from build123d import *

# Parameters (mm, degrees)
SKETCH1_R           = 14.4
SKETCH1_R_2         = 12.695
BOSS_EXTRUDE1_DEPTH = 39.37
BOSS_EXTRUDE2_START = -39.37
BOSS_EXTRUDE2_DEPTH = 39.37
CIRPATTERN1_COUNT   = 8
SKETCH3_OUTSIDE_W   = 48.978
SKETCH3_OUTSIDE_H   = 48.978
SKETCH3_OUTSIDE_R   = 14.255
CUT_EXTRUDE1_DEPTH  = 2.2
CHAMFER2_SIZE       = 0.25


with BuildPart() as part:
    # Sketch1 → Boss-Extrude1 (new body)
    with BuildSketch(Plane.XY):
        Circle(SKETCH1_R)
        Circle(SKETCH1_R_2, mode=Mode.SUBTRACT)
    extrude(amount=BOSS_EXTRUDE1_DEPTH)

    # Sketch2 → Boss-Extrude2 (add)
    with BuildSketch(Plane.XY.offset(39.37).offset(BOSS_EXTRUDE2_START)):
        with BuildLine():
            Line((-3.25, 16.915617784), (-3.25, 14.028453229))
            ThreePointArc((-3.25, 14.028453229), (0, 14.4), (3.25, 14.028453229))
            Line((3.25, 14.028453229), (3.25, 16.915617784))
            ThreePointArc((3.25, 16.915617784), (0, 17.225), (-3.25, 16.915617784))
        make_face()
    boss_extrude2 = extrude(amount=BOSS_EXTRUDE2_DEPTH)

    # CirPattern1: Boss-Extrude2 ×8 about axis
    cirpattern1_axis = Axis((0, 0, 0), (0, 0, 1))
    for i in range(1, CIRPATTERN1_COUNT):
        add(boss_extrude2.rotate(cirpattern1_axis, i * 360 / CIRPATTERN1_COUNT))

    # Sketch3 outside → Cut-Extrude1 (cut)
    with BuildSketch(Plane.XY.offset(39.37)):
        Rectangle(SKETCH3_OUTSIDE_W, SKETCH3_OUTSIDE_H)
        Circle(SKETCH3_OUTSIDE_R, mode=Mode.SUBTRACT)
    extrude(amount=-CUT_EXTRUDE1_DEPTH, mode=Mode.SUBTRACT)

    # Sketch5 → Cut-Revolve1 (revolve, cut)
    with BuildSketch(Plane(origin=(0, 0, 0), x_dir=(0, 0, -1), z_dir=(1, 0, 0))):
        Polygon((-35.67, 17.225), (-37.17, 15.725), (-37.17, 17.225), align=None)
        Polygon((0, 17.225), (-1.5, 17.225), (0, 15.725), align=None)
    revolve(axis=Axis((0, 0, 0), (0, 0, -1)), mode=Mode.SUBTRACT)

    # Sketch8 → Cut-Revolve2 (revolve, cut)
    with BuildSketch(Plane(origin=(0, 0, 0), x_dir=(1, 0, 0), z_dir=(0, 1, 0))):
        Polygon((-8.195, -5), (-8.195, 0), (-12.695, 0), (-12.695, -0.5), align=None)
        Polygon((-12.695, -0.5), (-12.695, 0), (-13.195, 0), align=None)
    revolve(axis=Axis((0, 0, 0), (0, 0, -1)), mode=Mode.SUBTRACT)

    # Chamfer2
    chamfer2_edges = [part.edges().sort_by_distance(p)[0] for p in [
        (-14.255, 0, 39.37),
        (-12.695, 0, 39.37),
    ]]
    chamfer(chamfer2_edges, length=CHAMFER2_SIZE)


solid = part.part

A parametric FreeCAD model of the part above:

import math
import FreeCAD as App
import Part
import Sketcher
from FreeCAD import Vector


def edges_at(feature, points):
    """Names of the edges that pass closest to the given points."""
    edges = feature.Shape.Edges
    near = lambda p: min(range(len(edges)), key=lambda i: edges[i].distToShape(Part.Vertex(*p))[0])
    return sorted({f"Edge{near(p) + 1}" for p in points})


def add_polygon(sketch, points):
    """Adds a closed chain of lines whose ends are joined by coincident constraints."""
    first, n = sketch.GeometryCount, len(points)
    for a, b in zip(points, points[1:] + points[:1]):
        sketch.addGeometry(Part.LineSegment(App.Vector(*a, 0), App.Vector(*b, 0)), False)
    for i in range(n):
        sketch.addConstraint(Sketcher.Constraint("Coincident", first + i, 2, first + (i + 1) % n, 1))

doc = App.newDocument("Part")
body = doc.addObject("PartDesign::Body", "Body")

# Sketch on XY plane
sketch1 = body.newObject("Sketcher::SketchObject", "Sketch")
sketch1.AttachmentSupport = (doc.getObject("XY_Plane"), [""])
sketch1.MapMode = "FlatFace"
sketch1.addGeometry(Part.Circle(Vector(0, 0, 0), Vector(0, 0, 1), 14.4), False)
sketch1.addGeometry(Part.Circle(Vector(0, 0, 0), Vector(0, 0, 1), 12.695), False)
sketch1.addConstraint(Sketcher.Constraint("Coincident", 0, 3, -1, 1))
sketch1.addConstraint(Sketcher.Constraint("Coincident", 1, 3, -1, 1))
sketch1.addConstraint(Sketcher.Constraint("Diameter", 0, 28.8))
sketch1.addConstraint(Sketcher.Constraint("Diameter", 1, 25.39))
pad1 = body.newObject("PartDesign::Pad", "Pad")
pad1.Profile = sketch1
pad1.Length = 39.37

# Sketch on XY plane
sketch2 = body.newObject("Sketcher::SketchObject", "Sketch001")
sketch2.AttachmentSupport = (doc.getObject("XY_Plane"), [""])
sketch2.MapMode = "FlatFace"
sketch2.addGeometry(Part.LineSegment(Vector(-3.25, 16.915618, 0), Vector(-3.25, 14.028453, 0)), False)
sketch2.addGeometry(Part.ArcOfCircle(Part.Circle(Vector(0, 0, 0), Vector(0, 0, 1), 14.4), math.radians(76.956283), math.radians(103.043717)), False)
sketch2.addGeometry(Part.LineSegment(Vector(3.25, 14.028453, 0), Vector(3.25, 16.915618, 0)), False)
sketch2.addGeometry(Part.ArcOfCircle(Part.Circle(Vector(0, 0, 0), Vector(0, 0, 1), 17.225), math.radians(79.124284), math.radians(100.875716)), False)
sketch2.addConstraint(Sketcher.Constraint("Coincident", 0, 2, 1, 2))
sketch2.addConstraint(Sketcher.Constraint("Coincident", 1, 1, 2, 1))
sketch2.addConstraint(Sketcher.Constraint("Coincident", 2, 2, 3, 1))
sketch2.addConstraint(Sketcher.Constraint("Coincident", 3, 2, 0, 1))
sketch2.addConstraint(Sketcher.Constraint("Vertical", 0))
sketch2.addConstraint(Sketcher.Constraint("Vertical", 2))
sketch2.addConstraint(Sketcher.Constraint("Coincident", 1, 3, -1, 1))
sketch2.addConstraint(Sketcher.Constraint("Coincident", 3, 3, -1, 1))
sketch2.addConstraint(Sketcher.Constraint("Horizontal", 0, 2, 1, 1))
sketch2.addConstraint(Sketcher.Constraint("Radius", 1, 14.4))
sketch2.addConstraint(Sketcher.Constraint("Radius", 3, 17.225))
sketch2.addConstraint(Sketcher.Constraint("DistanceX", 0, 2, 1, 1, 6.5))
pad2 = body.newObject("PartDesign::Pad", "Pad001")
pad2.Profile = sketch2
pad2.Length = 39.37
doc.recompute()

polarpattern = body.newObject("PartDesign::PolarPattern", "PolarPattern")
polarpattern.Originals = [pad2]
polarpattern.Axis = (doc.getObject("Z_Axis"), [""])
polarpattern.Angle = 360
polarpattern.Occurrences = 8
body.Tip = polarpattern

# Sketch on XY plane
sketch3 = body.newObject("Sketcher::SketchObject", "Sketch002")
sketch3.AttachmentSupport = (doc.getObject("XY_Plane"), [""])
sketch3.MapMode = "FlatFace"
sketch3.AttachmentOffset = App.Placement(Vector(0, 0, 39.37), App.Rotation())
add_polygon(sketch3, [(-24.489, 24.489), (-24.489, -24.489), (24.489, -24.489), (24.489, 24.489)])  # lines 0-3
sketch3.addGeometry(Part.Circle(Vector(0, 0, 0), Vector(0, 0, 1), 14.255), False)  # 4
sketch3.addConstraint(Sketcher.Constraint("Vertical", 0))
sketch3.addConstraint(Sketcher.Constraint("Horizontal", 1))
sketch3.addConstraint(Sketcher.Constraint("Vertical", 2))
sketch3.addConstraint(Sketcher.Constraint("Horizontal", 3))
sketch3.addConstraint(Sketcher.Constraint("Coincident", 4, 3, -1, 1))
sketch3.addConstraint(Sketcher.Constraint("Symmetric", 0, 2, 2, 2, -1, 1))
sketch3.addConstraint(Sketcher.Constraint("Equal", 3, 0))
sketch3.addConstraint(Sketcher.Constraint("Diameter", 4, 28.51))
sketch3.addConstraint(Sketcher.Constraint("DistanceX", 1, 1, 1, 2, 48.978))
pocket1 = body.newObject("PartDesign::Pocket", "Pocket")
pocket1.Profile = sketch3
pocket1.Length = 2.2

# Sketch on YZ plane
sketch4 = body.newObject("Sketcher::SketchObject", "Sketch003")
sketch4.AttachmentSupport = (doc.getObject("YZ_Plane"), [""])
sketch4.MapMode = "FlatFace"
add_polygon(sketch4, [(15.725, 37.17), (17.225, 35.67), (17.225, 37.17)])  # lines 0-2
add_polygon(sketch4, [(17.225, 0), (17.225, 1.5), (15.725, 0)])  # lines 3-5
sketch4.addConstraint(Sketcher.Constraint("Vertical", 1))
sketch4.addConstraint(Sketcher.Constraint("Horizontal", 2))
sketch4.addConstraint(Sketcher.Constraint("Vertical", 3))
sketch4.addConstraint(Sketcher.Constraint("Horizontal", 5))
sketch4.addConstraint(Sketcher.Constraint("PointOnObject", 4, 2, -1))
sketch4.addConstraint(Sketcher.Constraint("Perpendicular", 0, 4))
sketch4.addConstraint(Sketcher.Constraint("Vertical", 1, 2, 3, 2))
sketch4.addConstraint(Sketcher.Constraint("Vertical", 2, 2, 4, 2))
sketch4.addConstraint(Sketcher.Constraint("Equal", 5, 1))
sketch4.addConstraint(Sketcher.Constraint("DistanceX", 2, 2, 2, 1, 1.5))
sketch4.addConstraint(Sketcher.Constraint("DistanceY", -1, 1, 0, 2, 35.67))
sketch4.addConstraint(Sketcher.Constraint("DistanceX", -1, 1, 0, 2, 17.225))
groove = body.newObject("PartDesign::Groove", "Groove")
groove.Profile = sketch4
groove.ReferenceAxis = (sketch4, ["V_Axis"])
groove.Angle = 360

# Sketch on XZ plane
sketch5 = body.newObject("Sketcher::SketchObject", "Sketch004")
sketch5.AttachmentSupport = (doc.getObject("XZ_Plane"), [""])
sketch5.MapMode = "FlatFace"
add_polygon(sketch5, [(-8.195, 5), (-8.195, 0), (-13.195, 0)])  # lines 0-2
sketch5.addConstraint(Sketcher.Constraint("Vertical", 0))
sketch5.addConstraint(Sketcher.Constraint("Horizontal", 1))
sketch5.addConstraint(Sketcher.Constraint("PointOnObject", 0, 2, -1))
sketch5.addConstraint(Sketcher.Constraint("Equal", 1, 0))
sketch5.addConstraint(Sketcher.Constraint("DistanceX", 1, 2, 1, 1, 5.0))
sketch5.addConstraint(Sketcher.Constraint("DistanceX", 0, 2, -1, 1, 8.195))
groove2 = body.newObject("PartDesign::Groove", "Groove001")
groove2.Profile = sketch5
groove2.ReferenceAxis = (sketch5, ["V_Axis"])
groove2.Angle = 360
doc.recompute()

chamfer = body.newObject("PartDesign::Chamfer", "Chamfer")
chamfer.Base = (groove2, edges_at(groove2, [(-14.255, 0, 39.37), (-12.695, 0, 39.37)]))
chamfer.Size = 0.25

doc.recompute()
